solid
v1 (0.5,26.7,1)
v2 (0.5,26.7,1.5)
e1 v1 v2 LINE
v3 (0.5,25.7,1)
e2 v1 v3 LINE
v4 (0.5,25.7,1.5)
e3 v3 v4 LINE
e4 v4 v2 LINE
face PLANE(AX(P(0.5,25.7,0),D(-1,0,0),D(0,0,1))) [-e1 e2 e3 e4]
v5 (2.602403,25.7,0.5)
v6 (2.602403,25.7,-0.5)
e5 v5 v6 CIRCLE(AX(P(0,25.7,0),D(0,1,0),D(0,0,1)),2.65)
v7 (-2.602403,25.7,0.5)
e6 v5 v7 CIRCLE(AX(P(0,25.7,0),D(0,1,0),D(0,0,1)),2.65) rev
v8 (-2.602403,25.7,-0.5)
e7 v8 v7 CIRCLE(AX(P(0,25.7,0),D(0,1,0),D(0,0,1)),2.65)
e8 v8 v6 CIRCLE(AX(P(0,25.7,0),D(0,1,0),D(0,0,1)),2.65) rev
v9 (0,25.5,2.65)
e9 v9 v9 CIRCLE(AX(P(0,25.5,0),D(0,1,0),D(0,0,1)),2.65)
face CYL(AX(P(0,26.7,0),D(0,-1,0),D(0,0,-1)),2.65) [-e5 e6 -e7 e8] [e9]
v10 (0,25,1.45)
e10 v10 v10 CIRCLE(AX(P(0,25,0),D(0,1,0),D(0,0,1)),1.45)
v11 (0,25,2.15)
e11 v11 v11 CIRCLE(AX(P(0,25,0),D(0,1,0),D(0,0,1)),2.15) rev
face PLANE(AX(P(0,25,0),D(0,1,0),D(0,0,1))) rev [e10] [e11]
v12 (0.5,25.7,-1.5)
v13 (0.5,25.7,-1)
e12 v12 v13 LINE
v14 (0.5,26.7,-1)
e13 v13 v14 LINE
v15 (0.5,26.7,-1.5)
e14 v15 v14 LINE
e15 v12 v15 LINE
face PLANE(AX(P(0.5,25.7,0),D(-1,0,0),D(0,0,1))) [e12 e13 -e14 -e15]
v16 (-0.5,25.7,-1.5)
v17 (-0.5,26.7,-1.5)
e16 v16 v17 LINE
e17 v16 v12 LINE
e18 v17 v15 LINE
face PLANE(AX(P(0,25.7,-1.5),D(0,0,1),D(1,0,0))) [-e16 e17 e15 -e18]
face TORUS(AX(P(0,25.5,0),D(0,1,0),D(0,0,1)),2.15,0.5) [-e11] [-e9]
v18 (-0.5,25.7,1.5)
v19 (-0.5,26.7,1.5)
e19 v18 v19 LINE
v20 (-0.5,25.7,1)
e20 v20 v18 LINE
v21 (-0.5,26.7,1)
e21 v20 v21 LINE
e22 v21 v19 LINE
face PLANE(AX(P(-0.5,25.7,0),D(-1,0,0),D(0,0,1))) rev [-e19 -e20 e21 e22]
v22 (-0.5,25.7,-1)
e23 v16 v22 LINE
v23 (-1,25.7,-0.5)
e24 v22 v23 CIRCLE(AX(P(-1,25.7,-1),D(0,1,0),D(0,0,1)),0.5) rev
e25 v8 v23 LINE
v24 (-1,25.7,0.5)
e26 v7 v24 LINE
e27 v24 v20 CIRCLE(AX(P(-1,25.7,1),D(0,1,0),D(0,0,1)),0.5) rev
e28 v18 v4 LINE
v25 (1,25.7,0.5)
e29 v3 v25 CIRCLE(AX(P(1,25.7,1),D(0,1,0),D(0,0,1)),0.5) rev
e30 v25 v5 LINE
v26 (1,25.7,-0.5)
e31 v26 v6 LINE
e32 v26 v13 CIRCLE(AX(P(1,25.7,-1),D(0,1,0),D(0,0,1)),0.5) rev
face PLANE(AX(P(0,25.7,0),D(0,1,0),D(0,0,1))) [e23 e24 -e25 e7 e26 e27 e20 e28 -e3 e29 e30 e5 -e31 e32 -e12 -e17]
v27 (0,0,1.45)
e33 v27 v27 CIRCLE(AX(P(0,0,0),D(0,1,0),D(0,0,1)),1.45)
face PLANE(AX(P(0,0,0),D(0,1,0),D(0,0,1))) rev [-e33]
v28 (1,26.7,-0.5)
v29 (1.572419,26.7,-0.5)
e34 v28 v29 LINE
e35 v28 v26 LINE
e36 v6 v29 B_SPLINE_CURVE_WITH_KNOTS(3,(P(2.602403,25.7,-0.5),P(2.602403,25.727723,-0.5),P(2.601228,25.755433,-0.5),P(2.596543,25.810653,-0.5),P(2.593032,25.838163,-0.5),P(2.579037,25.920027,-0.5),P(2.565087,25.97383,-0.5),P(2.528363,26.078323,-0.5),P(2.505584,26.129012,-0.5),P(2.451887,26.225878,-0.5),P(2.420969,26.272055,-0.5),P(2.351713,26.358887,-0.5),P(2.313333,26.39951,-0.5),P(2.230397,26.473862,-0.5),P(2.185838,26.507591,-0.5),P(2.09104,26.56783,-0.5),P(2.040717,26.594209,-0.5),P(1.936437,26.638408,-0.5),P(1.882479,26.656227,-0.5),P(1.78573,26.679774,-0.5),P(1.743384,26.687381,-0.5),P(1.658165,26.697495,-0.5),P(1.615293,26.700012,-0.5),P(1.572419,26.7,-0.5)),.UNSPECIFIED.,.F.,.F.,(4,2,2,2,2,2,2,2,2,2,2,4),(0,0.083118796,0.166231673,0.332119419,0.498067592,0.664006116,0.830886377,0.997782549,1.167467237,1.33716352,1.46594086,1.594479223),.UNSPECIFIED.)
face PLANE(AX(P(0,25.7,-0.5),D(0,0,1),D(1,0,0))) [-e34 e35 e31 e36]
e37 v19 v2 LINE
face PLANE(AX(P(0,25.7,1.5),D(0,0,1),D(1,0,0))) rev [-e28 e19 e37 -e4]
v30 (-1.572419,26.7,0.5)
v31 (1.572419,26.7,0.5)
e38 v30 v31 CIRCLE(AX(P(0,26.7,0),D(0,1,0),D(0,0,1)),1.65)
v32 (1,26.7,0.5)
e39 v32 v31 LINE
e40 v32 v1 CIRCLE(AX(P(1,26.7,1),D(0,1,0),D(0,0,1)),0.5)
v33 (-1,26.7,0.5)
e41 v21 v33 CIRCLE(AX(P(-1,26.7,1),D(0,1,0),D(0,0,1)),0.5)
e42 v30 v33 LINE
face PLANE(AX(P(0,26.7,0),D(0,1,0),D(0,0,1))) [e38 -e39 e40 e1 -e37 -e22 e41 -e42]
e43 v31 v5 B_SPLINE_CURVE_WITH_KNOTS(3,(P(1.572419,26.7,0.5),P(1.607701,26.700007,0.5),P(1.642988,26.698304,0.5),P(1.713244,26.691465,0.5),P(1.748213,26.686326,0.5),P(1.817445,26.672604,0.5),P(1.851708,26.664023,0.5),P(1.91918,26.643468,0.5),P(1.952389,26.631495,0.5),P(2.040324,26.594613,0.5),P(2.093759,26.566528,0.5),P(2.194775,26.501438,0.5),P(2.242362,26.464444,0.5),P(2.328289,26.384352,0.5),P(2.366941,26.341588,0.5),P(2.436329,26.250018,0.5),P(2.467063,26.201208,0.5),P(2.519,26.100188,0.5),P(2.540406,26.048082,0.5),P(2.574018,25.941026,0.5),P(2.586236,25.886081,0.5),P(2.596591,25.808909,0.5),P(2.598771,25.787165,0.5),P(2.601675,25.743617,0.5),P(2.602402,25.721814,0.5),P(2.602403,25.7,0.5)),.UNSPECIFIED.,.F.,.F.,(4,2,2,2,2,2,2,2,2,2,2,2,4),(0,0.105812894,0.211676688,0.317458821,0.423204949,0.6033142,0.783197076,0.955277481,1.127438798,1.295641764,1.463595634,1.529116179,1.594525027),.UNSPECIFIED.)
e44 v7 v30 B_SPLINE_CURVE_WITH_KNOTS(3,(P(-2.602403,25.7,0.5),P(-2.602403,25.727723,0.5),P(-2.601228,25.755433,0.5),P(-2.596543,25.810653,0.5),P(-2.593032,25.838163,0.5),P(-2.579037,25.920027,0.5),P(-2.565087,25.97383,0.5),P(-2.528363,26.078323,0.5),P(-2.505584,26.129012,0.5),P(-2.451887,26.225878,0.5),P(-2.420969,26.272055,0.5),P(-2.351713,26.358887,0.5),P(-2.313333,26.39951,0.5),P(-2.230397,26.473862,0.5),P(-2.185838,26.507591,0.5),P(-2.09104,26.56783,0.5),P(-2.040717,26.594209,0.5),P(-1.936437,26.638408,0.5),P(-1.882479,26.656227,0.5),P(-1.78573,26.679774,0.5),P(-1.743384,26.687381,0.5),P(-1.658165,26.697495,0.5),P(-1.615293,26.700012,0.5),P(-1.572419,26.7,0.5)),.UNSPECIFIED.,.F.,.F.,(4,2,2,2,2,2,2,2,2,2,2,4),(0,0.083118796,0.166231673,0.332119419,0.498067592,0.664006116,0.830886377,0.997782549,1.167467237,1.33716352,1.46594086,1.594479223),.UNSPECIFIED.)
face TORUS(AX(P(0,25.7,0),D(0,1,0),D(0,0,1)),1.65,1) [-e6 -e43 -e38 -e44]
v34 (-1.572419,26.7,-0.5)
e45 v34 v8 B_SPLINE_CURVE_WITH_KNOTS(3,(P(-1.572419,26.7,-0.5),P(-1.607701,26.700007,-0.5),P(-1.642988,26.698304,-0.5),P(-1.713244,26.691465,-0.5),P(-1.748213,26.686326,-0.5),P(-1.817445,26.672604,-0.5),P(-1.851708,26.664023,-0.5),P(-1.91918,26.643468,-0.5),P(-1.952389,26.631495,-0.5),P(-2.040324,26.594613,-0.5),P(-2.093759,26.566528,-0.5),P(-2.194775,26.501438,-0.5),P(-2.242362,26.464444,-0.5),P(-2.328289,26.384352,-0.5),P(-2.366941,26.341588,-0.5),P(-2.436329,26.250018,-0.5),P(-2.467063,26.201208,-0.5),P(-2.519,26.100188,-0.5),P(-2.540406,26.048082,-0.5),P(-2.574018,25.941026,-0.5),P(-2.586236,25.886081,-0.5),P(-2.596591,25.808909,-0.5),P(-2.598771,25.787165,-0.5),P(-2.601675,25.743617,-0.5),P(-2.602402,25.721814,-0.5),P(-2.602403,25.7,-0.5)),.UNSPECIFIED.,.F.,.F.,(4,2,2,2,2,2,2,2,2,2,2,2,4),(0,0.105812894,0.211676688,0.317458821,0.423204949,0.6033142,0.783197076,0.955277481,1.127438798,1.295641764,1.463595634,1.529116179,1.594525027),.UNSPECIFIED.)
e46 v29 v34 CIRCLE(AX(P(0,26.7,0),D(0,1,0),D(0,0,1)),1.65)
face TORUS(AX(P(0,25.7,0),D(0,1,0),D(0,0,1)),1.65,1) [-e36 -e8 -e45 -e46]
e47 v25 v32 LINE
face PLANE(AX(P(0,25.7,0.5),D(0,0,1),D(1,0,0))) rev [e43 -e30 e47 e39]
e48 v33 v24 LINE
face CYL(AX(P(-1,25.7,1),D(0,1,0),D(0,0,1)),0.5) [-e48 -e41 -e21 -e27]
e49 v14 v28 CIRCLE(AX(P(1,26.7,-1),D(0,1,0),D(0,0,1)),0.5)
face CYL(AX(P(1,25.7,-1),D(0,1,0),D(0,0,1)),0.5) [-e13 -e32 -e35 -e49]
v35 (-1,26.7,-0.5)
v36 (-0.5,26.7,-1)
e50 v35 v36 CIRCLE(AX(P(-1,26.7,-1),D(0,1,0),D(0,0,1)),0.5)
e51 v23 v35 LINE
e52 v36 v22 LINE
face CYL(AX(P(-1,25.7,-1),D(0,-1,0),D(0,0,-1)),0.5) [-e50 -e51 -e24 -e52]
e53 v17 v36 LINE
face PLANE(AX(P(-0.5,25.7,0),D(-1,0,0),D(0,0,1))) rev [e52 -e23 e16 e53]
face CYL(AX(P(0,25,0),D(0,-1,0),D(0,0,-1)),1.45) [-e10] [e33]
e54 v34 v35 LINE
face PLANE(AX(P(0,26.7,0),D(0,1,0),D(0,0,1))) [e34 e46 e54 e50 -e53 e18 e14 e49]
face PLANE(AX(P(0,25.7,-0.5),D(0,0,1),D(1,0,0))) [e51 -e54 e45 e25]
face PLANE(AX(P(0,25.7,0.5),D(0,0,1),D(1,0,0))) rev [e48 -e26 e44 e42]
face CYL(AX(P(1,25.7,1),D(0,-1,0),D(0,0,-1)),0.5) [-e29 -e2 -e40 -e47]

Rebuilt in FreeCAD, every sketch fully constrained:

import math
import FreeCAD as App
import Part
import Sketcher


def edges_at(feature, points):
    """Names of the edges that pass closest to the given points."""
    edges = feature.Shape.Edges
    near = lambda p: min(range(len(edges)), key=lambda i: edges[i].distToShape(Part.Vertex(*p))[0])
    return sorted({f"Edge{near(p) + 1}" for p in points})

doc = App.newDocument("Part")
body = doc.addObject("PartDesign::Body", "Body")

# Sketch on XZ plane
sketch1 = body.newObject("Sketcher::SketchObject", "Sketch")
sketch1.AttachmentSupport = (doc.getObject("XZ_Plane"), [""])
sketch1.MapMode = "FlatFace"
sketch1.addGeometry(Part.Circle(App.Vector(0, 0, 0), App.Vector(0, 0, 1), 1.4), False)
sketch1.addConstraint(Sketcher.Constraint("Coincident", 0, 3, -1, 1))
sketch1.addConstraint(Sketcher.Constraint("Diameter", 0, 2.9))
pad1 = body.newObject("PartDesign::Pad", "Pad")
pad1.Profile = sketch1
pad1.Length = 25
pad1.Reversed = True

# Sketch on XZ plane
sketch2 = body.newObject("Sketcher::SketchObject", "Sketch001")
sketch2.AttachmentSupport = (doc.getObject("XZ_Plane"), [""])
sketch2.MapMode = "FlatFace"
sketch2.AttachmentOffset = App.Placement(App.Vector(0, 0, -25), App.Rotation())
sketch2.addGeometry(Part.Circle(App.Vector(0, 0, 0), App.Vector(0, 0, 1), 2.6), False)
sketch2.addConstraint(Sketcher.Constraint("Coincident", 0, 3, -1, 1))
sketch2.addConstraint(Sketcher.Constraint("Diameter", 0, 5.3))
pad2 = body.newObject("PartDesign::Pad", "Pad001")
pad2.Profile = sketch2
pad2.Length = 1.7
pad2.Reversed = True

# Sketch on XZ plane
sketch3 = body.newObject("Sketcher::SketchObject", "Sketch002")
sketch3.AttachmentSupport = (doc.getObject("XZ_Plane"), [""])
sketch3.MapMode = "FlatFace"
sketch3.AttachmentOffset = App.Placement(App.Vector(0, 0, -25.7), App.Rotation())
sketch3.addGeometry(Part.LineSegment(App.Vector(-0.5, -0.5, 0), App.Vector(-2.6, -0.5, 0)), False)
sketch3.addGeometry(Part.ArcOfCircle(Part.Circle(App.Vector(0, 0, 0), App.Vector(0, 0, 1), 2.7), math.radians(169), math.radians(191)), False)
sketch3.addGeometry(Part.LineSegment(App.Vector(-2.6, 0.5, 0), App.Vector(-0.5, 0.5, 0)), False)
sketch3.addGeometry(Part.LineSegment(App.Vector(-0.5, 0.5, 0), App.Vector(-0.5, 1.5, 0)), False)
sketch3.addGeometry(Part.LineSegment(App.Vector(-0.5, 1.5, 0), App.Vector(0.5, 1.5, 0)), False)
sketch3.addGeometry(Part.LineSegment(App.Vector(0.5, 1.5, 0), App.Vector(0.5, 0.5, 0)), False)
sketch3.addGeometry(Part.LineSegment(App.Vector(0.5, 0.5, 0), App.Vector(2.6, 0.5, 0)), False)
sketch3.addGeometry(Part.ArcOfCircle(Part.Circle(App.Vector(0, 0, 0), App.Vector(0, 0, 1), 2.6), math.radians(0), math.radians(10.88)), False)
sketch3.addGeometry(Part.ArcOfCircle(Part.Circle(App.Vector(0, 0, 0), App.Vector(0, 0, 1), 2.6), math.radians(-10.88), math.radians(0)), False)
sketch3.addGeometry(Part.LineSegment(App.Vector(2.6, -0.5, 0), App.Vector(0.5, -0.5, 0)), False)
sketch3.addGeometry(Part.LineSegment(App.Vector(0.5, -0.5, 0), App.Vector(0.5, -1.5, 0)), False)
sketch3.addGeometry(Part.LineSegment(App.Vector(0.5, -1.5, 0), App.Vector(-0.5, -1.5, 0)), False)
sketch3.addGeometry(Part.LineSegment(App.Vector(-0.5, -1.5, 0), App.Vector(-0.5, -0.5, 0)), False)
sketch3.addConstraint(Sketcher.Constraint("Coincident", 0, 2, 1, 2))
sketch3.addConstraint(Sketcher.Constraint("Coincident", 1, 1, 2, 1))
sketch3.addConstraint(Sketcher.Constraint("Coincident", 2, 2, 3, 1))
sketch3.addConstraint(Sketcher.Constraint("Coincident", 3, 2, 4, 1))
sketch3.addConstraint(Sketcher.Constraint("Coincident", 4, 2, 5, 1))
sketch3.addConstraint(Sketcher.Constraint("Coincident", 5, 2, 6, 1))
sketch3.addConstraint(Sketcher.Constraint("Coincident", 6, 2, 7, 2))
sketch3.addConstraint(Sketcher.Constraint("Tangent", 7, 1, 8, 2))
sketch3.addConstraint(Sketcher.Constraint("Coincident", 8, 1, 9, 1))
sketch3.addConstraint(Sketcher.Constraint("Coincident", 9, 2, 10, 1))
sketch3.addConstraint(Sketcher.Constraint("Coincident", 10, 2, 11, 1))
sketch3.addConstraint(Sketcher.Constraint("Coincident", 11, 2, 12, 1))
sketch3.addConstraint(Sketcher.Constraint("Coincident", 12, 2, 0, 1))
sketch3.addConstraint(Sketcher.Constraint("Horizontal", 0))
sketch3.addConstraint(Sketcher.Constraint("Horizontal", 2))
sketch3.addConstraint(Sketcher.Constraint("Vertical", 3))
sketch3.addConstraint(Sketcher.Constraint("Horizontal", 4))
sketch3.addConstraint(Sketcher.Constraint("Vertical", 5))
sketch3.addConstraint(Sketcher.Constraint("Horizontal", 6))
sketch3.addConstraint(Sketcher.Constraint("Horizontal", 9))
sketch3.addConstraint(Sketcher.Constraint("Vertical", 10))
sketch3.addConstraint(Sketcher.Constraint("Horizontal", 11))
sketch3.addConstraint(Sketcher.Constraint("Vertical", 12))
sketch3.addConstraint(Sketcher.Constraint("Coincident", 1, 3, -1, 1))
sketch3.addConstraint(Sketcher.Constraint("Coincident", 7, 3, -1, 1))
sketch3.addConstraint(Sketcher.Constraint("Equal", 1, 7))
sketch3.addConstraint(Sketcher.Constraint("Equal", 7, 8))
sketch3.addConstraint(Sketcher.Constraint("Symmetric", 2, 2, 9, 2, -1, 1))
sketch3.addConstraint(Sketcher.Constraint("Symmetric", 4, 2, 11, 2, -1, 1))
sketch3.addConstraint(Sketcher.Constraint("Symmetric", 2, 2, 5, 2, -2))
sketch3.addConstraint(Sketcher.Constraint("PointOnObject", 7, 1, -1))
sketch3.addConstraint(Sketcher.Constraint("Horizontal", 0, 2, 8, 1))
sketch3.addConstraint(Sketcher.Constraint("Equal", 11, 3))
sketch3.addConstraint(Sketcher.Constraint("DistanceX", 4, 1, 4, 2, 1.0))
sketch3.addConstraint(Sketcher.Constraint("Radius", 1, 2.65))
sketch3.addConstraint(Sketcher.Constraint("DistanceY", 0, 2, 1, 1, 1.0))
pocket1 = body.newObject("PartDesign::Pocket", "Pocket")
pocket1.Profile = sketch3
pocket1.Length = 1
doc.recompute()

fillet = body.newObject("PartDesign::Fillet", "Fillet")
fillet.Base = (pocket1, edges_at(pocket1, [
    (-0.5, 26.2, 0.5),
    (-0.5, 26.2, -0.5),
    (0.5, 26.2, -0.5),
    (0.5, 26.2, 0.5),
]))
fillet.Radius = 0.5
doc.recompute()

fillet2 = body.newObject("PartDesign::Fillet", "Fillet001")
fillet2.Base = (fillet, edges_at(fillet, [(0, 26.7, -2.65), (1.688, 26.7, 2.043)]))
fillet2.Radius = 1
doc.recompute()

fillet3 = body.newObject("PartDesign::Fillet", "Fillet002")
fillet3.Base = (fillet2, edges_at(fillet2, [(0, 25, -2.65)]))
fillet3.Radius = 0.5

doc.recompute()
